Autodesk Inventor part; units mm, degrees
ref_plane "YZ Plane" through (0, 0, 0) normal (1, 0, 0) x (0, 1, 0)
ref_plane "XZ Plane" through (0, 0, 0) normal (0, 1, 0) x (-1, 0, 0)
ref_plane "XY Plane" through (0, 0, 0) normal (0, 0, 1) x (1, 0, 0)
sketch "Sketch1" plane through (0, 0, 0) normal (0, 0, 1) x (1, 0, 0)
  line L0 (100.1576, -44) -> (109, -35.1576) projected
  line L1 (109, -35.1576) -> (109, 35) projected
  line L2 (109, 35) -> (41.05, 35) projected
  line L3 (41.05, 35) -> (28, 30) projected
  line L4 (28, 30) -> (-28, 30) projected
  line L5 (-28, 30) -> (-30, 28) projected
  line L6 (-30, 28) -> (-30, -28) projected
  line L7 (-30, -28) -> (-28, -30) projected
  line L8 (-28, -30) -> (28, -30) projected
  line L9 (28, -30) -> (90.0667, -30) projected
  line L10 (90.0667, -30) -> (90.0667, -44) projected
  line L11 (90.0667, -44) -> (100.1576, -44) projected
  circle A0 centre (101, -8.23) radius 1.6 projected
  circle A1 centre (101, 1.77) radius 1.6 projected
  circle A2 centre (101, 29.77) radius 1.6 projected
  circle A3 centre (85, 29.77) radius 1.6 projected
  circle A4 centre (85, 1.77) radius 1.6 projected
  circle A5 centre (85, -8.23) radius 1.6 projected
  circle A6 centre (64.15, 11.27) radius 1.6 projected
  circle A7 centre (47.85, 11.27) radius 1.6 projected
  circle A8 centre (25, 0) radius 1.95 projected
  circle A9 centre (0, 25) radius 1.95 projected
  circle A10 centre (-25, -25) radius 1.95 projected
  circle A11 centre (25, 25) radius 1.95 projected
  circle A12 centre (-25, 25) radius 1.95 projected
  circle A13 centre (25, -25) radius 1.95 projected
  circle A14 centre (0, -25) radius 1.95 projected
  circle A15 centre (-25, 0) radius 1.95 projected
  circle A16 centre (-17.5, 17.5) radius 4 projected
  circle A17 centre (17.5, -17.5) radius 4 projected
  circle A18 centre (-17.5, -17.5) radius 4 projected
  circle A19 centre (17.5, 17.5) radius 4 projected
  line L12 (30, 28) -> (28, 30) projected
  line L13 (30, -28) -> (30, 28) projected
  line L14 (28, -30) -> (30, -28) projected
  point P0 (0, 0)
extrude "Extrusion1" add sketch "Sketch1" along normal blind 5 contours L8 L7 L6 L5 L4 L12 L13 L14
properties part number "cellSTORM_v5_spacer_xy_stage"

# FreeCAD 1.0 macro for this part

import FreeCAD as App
import Part
import Sketcher
from FreeCAD import Vector
Q = App.Units.Quantity

doc = App.newDocument("Part")
body = doc.addObject("PartDesign::Body", "Body")

sketch1 = doc.addObject("Sketcher::SketchObject", "Sketch")
body.addObject(sketch1)
sketch1.AttachmentSupport = (doc.XY_Plane, [""])
sketch1.MapMode = "FlatFace"
sketch1.addGeometry([
    Part.LineSegment(Vector(-28, -30, 0), Vector(28, -30, 0)),
    Part.LineSegment(Vector(28, -30, 0), Vector(30, -28, 0)),
    Part.LineSegment(Vector(30, -28, 0), Vector(30, 28, 0)),
    Part.LineSegment(Vector(30, 28, 0), Vector(28, 30, 0)),
    Part.LineSegment(Vector(28, 30, 0), Vector(-28, 30, 0)),
    Part.LineSegment(Vector(-28, 30, 0), Vector(-30, 28, 0)),
    Part.LineSegment(Vector(-30, 28, 0), Vector(-30, -28, 0)),
    Part.LineSegment(Vector(-30, -28, 0), Vector(-28, -30, 0)),
    Part.Circle(Vector(-25, -25, 0), Vector(0, 0, 1), 1.95),
    Part.Circle(Vector(0, -25, 0), Vector(0, 0, 1), 1.95),
    Part.Circle(Vector(25, -25, 0), Vector(0, 0, 1), 1.95),
    Part.Circle(Vector(-17.5, -17.5, 0), Vector(0, 0, 1), 4),
    Part.Circle(Vector(17.5, -17.5, 0), Vector(0, 0, 1), 4),
    Part.Circle(Vector(-25, 0, 0), Vector(0, 0, 1), 1.95),
    Part.Circle(Vector(25, 0, 0), Vector(0, 0, 1), 1.95),
    Part.Circle(Vector(-17.5, 17.5, 0), Vector(0, 0, 1), 4),
    Part.Circle(Vector(-25, 25, 0), Vector(0, 0, 1), 1.95),
    Part.Circle(Vector(0, 25, 0), Vector(0, 0, 1), 1.95),
    Part.Circle(Vector(17.5, 17.5, 0), Vector(0, 0, 1), 4),
    Part.Circle(Vector(25, 25, 0), Vector(0, 0, 1), 1.95),
], False)
sketch1.addConstraint([
    Sketcher.Constraint("Coincident", 0, 2, 1, 1),
    Sketcher.Constraint("Coincident", 1, 2, 2, 1),
    Sketcher.Constraint("Coincident", 2, 2, 3, 1),
    Sketcher.Constraint("Coincident", 3, 2, 4, 1),
    Sketcher.Constraint("Coincident", 4, 2, 5, 1),
    Sketcher.Constraint("Coincident", 5, 2, 6, 1),
    Sketcher.Constraint("Coincident", 6, 2, 7, 1),
    Sketcher.Constraint("Coincident", 7, 2, 0, 1),
    Sketcher.Constraint("Horizontal", 0),
    Sketcher.Constraint("Vertical", 2),
    Sketcher.Constraint("Horizontal", 4),
    Sketcher.Constraint("Vertical", 6),
    Sketcher.Constraint("Equal", 8, 9),
    Sketcher.Constraint("Equal", 9, 10),
    Sketcher.Constraint("Equal", 11, 12),
    Sketcher.Constraint("Equal", 10, 13),
    Sketcher.Constraint("Equal", 13, 14),
    Sketcher.Constraint("Equal", 12, 15),
    Sketcher.Constraint("Equal", 14, 16),
    Sketcher.Constraint("Equal", 16, 17),
    Sketcher.Constraint("Equal", 15, 18),
    Sketcher.Constraint("Equal", 17, 19),
    Sketcher.Constraint("Symmetric", 13, 3, 14, 3, -1, 1),
    Sketcher.Constraint("Symmetric", 12, 3, 15, 3, -1, 1),
    Sketcher.Constraint("Symmetric", 10, 3, 16, 3, -1, 1),
    Sketcher.Constraint("Symmetric", 9, 3, 17, 3, -1, 1),
    Sketcher.Constraint("Symmetric", 11, 3, 18, 3, -1, 1),
    Sketcher.Constraint("Symmetric", 8, 3, 19, 3, -1, 1),
    Sketcher.Constraint("Symmetric", 0, 2, 4, 2, -1, 1),
    Sketcher.Constraint("Symmetric", 1, 2, 5, 2, -1, 1),
    Sketcher.Constraint("Symmetric", 8, 3, 10, 3, -2),
    Sketcher.Constraint("Symmetric", 11, 3, 12, 3, -2),
    Sketcher.Constraint("PointOnObject", 9, 3, -2),
    Sketcher.Constraint("PointOnObject", 13, 3, -1),
    Sketcher.Constraint("Perpendicular", 1, 3),
    Sketcher.Constraint("Perpendicular", 5, 7),
    Sketcher.Constraint("Horizontal", 8, 3, 9, 3),
    Sketcher.Constraint("Horizontal", 2, 2, 5, 2),
    Sketcher.Constraint("Horizontal", 1, 2, 6, 2),
    Sketcher.Constraint("Vertical", 8, 3, 13, 3),
    Sketcher.Constraint("Vertical", 0, 2, 3, 2),
    Sketcher.Constraint("Equal", 4, 2),
    Sketcher.Constraint("Diameter", 11, Q("8 mm")),
    Sketcher.Constraint("Diameter", 8, Q("3.9 mm")),
    Sketcher.Constraint("DistanceX", 0, 1, 0, 2, Q("56 mm")),
    Sketcher.Constraint("DistanceX", 8, 3, -1, 1, Q("25 mm")),
    Sketcher.Constraint("DistanceY", 8, 3, -1, 1, Q("25 mm")),
    Sketcher.Constraint("DistanceY", 0, 2, -1, 1, Q("30 mm")),
    Sketcher.Constraint("DistanceX", 11, 3, 12, 3, Q("35 mm")),
    Sketcher.Constraint("DistanceY", 11, 3, 15, 3, Q("35 mm")),
])
pad1 = doc.addObject("PartDesign::Pad", "Pad")
body.addObject(pad1)
pad1.Profile = sketch1
pad1.Length = 5

doc.recompute()
